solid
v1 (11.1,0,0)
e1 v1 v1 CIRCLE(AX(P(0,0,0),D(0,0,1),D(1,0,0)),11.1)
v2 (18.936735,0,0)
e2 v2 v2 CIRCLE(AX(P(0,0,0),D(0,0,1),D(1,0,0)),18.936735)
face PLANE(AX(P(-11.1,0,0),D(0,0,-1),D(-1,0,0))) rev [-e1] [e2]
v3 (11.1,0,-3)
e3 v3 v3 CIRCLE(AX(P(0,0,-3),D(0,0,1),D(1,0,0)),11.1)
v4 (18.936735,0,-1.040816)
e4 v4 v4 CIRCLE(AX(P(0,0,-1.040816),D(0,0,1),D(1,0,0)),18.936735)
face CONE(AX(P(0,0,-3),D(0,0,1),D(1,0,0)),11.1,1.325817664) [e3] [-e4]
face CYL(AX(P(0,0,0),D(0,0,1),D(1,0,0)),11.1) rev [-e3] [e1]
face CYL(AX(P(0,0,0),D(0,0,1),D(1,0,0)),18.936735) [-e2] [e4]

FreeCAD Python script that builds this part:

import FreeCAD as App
import Part
import Sketcher
from FreeCAD import Vector


def add_polygon(sketch, points):
    """Adds a closed chain of lines whose ends are joined by coincident constraints."""
    first, n = sketch.GeometryCount, len(points)
    for a, b in zip(points, points[1:] + points[:1]):
        sketch.addGeometry(Part.LineSegment(App.Vector(*a, 0), App.Vector(*b, 0)), False)
    for i in range(n):
        sketch.addConstraint(Sketcher.Constraint("Coincident", first + i, 2, first + (i + 1) % n, 1))

doc = App.newDocument("Part")
params = doc.addObject("Spreadsheet::Sheet", "Params")
for row, (alias, value) in enumerate([
    ("sketch1_height", "3 mm"),
    ("revolution_angle", "360 deg"),
], start=1):
    params.set(f"A{row}", alias)
    params.set(f"B{row}", "=" + value)
    params.setAlias(f"B{row}", alias)

body = doc.addObject("PartDesign::Body", "Body")

# Sketch on XZ plane
sketch1 = body.newObject("Sketcher::SketchObject", "Sketch")
sketch1.AttachmentSupport = (doc.getObject("XZ_Plane"), [""])
sketch1.MapMode = "FlatFace"
add_polygon(sketch1, [(-18.9, -1), (-18.9, 0), (-11.1, 0), (-11.1, -3)])  # lines 0-3
sketch1.addConstraint([
    Sketcher.Constraint("Vertical", 0),
    Sketcher.Constraint("Horizontal", 1),
    Sketcher.Constraint("Vertical", 2),
    Sketcher.Constraint("PointOnObject", 0, 2, -1),
    Sketcher.Constraint("DistanceY", 2, 2, 2, 1, 3.0),
    Sketcher.Constraint("DistanceX", 1, 2, -1, 1, 11.1),
    Sketcher.Constraint("Distance", 3, 8.077921),
    Sketcher.Constraint("DistanceX", 1, 1, 1, 2, 7.836735),
])
sketch1.setExpression("Constraints[8]", "Params.sketch1_height")
revolution = body.newObject("PartDesign::Revolution", "Revolution")
revolution.Profile = sketch1
revolution.ReferenceAxis = (sketch1, ["V_Axis"])
revolution.setExpression("Angle", "Params.revolution_angle")

doc.recompute()
